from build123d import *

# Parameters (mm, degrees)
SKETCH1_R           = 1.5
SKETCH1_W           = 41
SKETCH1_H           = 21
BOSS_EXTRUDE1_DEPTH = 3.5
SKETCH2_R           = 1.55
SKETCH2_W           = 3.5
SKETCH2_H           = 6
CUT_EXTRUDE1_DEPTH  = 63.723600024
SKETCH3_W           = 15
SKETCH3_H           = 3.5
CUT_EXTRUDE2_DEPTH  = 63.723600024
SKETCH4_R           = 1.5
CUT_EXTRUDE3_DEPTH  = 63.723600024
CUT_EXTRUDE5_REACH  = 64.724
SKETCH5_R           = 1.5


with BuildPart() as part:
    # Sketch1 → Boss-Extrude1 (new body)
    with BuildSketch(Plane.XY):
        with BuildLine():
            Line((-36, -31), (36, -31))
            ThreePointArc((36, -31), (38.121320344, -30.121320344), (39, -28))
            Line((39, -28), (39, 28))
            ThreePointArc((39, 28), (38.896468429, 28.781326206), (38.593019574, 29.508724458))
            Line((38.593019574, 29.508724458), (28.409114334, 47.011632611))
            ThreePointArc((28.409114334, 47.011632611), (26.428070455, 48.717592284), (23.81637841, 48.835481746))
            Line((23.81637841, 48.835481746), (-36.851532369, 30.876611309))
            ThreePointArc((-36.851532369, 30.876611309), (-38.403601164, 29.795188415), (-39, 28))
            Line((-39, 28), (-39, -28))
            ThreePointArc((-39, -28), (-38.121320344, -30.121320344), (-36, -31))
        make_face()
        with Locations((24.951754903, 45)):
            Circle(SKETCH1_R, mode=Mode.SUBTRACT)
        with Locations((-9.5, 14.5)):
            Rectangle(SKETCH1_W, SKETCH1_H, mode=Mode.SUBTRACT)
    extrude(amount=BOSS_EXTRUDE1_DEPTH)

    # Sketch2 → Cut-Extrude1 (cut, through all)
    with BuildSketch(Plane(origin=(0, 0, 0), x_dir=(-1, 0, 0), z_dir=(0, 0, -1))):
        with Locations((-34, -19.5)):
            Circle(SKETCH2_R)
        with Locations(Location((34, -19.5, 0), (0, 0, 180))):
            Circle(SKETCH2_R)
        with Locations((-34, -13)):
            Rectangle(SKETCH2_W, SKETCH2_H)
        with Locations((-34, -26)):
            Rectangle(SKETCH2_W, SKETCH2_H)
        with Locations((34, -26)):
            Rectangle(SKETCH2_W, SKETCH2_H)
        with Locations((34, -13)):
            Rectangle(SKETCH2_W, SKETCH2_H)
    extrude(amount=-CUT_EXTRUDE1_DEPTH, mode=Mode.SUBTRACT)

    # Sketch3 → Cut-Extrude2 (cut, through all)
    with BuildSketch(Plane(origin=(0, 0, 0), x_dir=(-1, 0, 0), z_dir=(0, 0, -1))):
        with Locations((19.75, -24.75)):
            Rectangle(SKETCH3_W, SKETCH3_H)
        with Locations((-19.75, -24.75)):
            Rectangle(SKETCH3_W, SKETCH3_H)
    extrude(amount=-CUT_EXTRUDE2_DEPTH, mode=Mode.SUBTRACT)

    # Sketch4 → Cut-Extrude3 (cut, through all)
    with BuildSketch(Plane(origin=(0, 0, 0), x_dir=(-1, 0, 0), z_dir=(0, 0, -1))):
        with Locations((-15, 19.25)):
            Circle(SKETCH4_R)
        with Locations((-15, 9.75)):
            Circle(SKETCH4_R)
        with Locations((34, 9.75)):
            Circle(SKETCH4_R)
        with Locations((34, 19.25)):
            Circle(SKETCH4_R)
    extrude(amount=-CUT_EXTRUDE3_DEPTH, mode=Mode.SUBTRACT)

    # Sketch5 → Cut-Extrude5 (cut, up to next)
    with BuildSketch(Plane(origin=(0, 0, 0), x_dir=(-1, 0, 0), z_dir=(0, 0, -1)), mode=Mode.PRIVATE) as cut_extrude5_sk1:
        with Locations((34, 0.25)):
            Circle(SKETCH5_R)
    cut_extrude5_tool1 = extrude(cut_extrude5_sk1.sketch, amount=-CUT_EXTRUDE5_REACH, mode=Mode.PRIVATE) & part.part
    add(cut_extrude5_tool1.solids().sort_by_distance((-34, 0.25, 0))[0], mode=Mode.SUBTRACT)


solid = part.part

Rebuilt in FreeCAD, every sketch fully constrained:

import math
import FreeCAD as App
import Part
import Sketcher


def add_polygon(sketch, points):
    """Adds a closed chain of lines whose ends are joined by coincident constraints."""
    first, n = sketch.GeometryCount, len(points)
    for a, b in zip(points, points[1:] + points[:1]):
        sketch.addGeometry(Part.LineSegment(App.Vector(*a, 0), App.Vector(*b, 0)), False)
    for i in range(n):
        sketch.addConstraint(Sketcher.Constraint("Coincident", first + i, 2, first + (i + 1) % n, 1))

doc = App.newDocument("Part")
params = doc.addObject("Spreadsheet::Sheet", "Params")
for row, (alias, value) in enumerate([
    ("sketch1_diameter", "3 mm"),
    ("sketch1_radius", "3 mm"),
    ("sketch1_radius2", "4 mm"),
    ("sketch1_width", "72 mm"),
    ("sketch1_width2", "41 mm"),
    ("pad1_length", "3.5 mm"),
    ("sketch2_diameter", "3.1 mm"),
    ("sketch2_height", "6 mm"),
    ("sketch2_width", "3.5 mm"),
    ("sketch3_width", "15 mm"),
    ("sketch3_height", "3.5 mm"),
    ("sketch4_diameter", "3 mm"),
    ("sketch5_diameter", "3 mm"),
], start=1):
    params.set(f"A{row}", alias)
    params.set(f"B{row}", "=" + value)
    params.setAlias(f"B{row}", alias)

body = doc.addObject("PartDesign::Body", "Body")

sketch1 = doc.addObject("Sketcher::SketchObject", "Sketch")
body.addObject(sketch1)
sketch1.AttachmentSupport = (doc.XY_Plane, [""])
sketch1.MapMode = "FlatFace"
sketch1.addGeometry(Part.LineSegment(App.Vector(-36, -31, 0), App.Vector(36, -31, 0)), False)
sketch1.addGeometry(Part.ArcOfCircle(Part.Circle(App.Vector(36, -28, 0), App.Vector(0, 0, 1), 3), math.radians(-90), math.radians(0)), False)
sketch1.addGeometry(Part.LineSegment(App.Vector(39, -28, 0), App.Vector(39, 28, 0)), False)
sketch1.addGeometry(Part.ArcOfCircle(Part.Circle(App.Vector(36, 28, 0), App.Vector(0, 0, 1), 3), math.radians(0), math.radians(30.192589)), False)
sketch1.addGeometry(Part.LineSegment(App.Vector(38.59302, 29.508724, 0), App.Vector(28.409114, 47.011633, 0)), False)
sketch1.addGeometry(Part.ArcOfCircle(Part.Circle(App.Vector(24.951755, 45, 0), App.Vector(0, 0, 1), 4), math.radians(30.192589), math.radians(106.489769)), False)
sketch1.addGeometry(Part.LineSegment(App.Vector(23.816378, 48.835482, 0), App.Vector(-36.851532, 30.876611, 0)), False)
sketch1.addGeometry(Part.ArcOfCircle(Part.Circle(App.Vector(-36, 28, 0), App.Vector(0, 0, 1), 3), math.radians(106.489769), math.radians(180)), False)
sketch1.addGeometry(Part.LineSegment(App.Vector(-39, 28, 0), App.Vector(-39, -28, 0)), False)
sketch1.addGeometry(Part.ArcOfCircle(Part.Circle(App.Vector(-36, -28, 0), App.Vector(0, 0, 1), 3), math.radians(180), math.radians(270)), False)
add_polygon(sketch1, [(11, 4), (-30, 4), (-30, 25), (11, 25)])
sketch1.addGeometry(Part.Circle(App.Vector(24.951755, 45, 0), App.Vector(0, 0, 1), 1.5), False)
sketch1.addConstraint([
    Sketcher.Constraint("Tangent", 0, 2, 1, 1),
    Sketcher.Constraint("Tangent", 1, 2, 2, 1),
    Sketcher.Constraint("Tangent", 2, 2, 3, 1),
    Sketcher.Constraint("Tangent", 3, 2, 4, 1),
    Sketcher.Constraint("Tangent", 4, 2, 5, 1),
    Sketcher.Constraint("Tangent", 5, 2, 6, 1),
    Sketcher.Constraint("Tangent", 6, 2, 7, 1),
    Sketcher.Constraint("Tangent", 7, 2, 8, 1),
    Sketcher.Constraint("Tangent", 8, 2, 9, 1),
    Sketcher.Constraint("Tangent", 9, 2, 0, 1),
    Sketcher.Constraint("Horizontal", 0),
    Sketcher.Constraint("Vertical", 2),
    Sketcher.Constraint("Vertical", 8),
    Sketcher.Constraint("Horizontal", 10),
    Sketcher.Constraint("Vertical", 11),
    Sketcher.Constraint("Horizontal", 12),
    Sketcher.Constraint("Vertical", 13),
    Sketcher.Constraint("Coincident", 14, 3, 5, 3),
    Sketcher.Constraint("Equal", 1, 3),
    Sketcher.Constraint("Equal", 3, 7),
    Sketcher.Constraint("Equal", 7, 9),
    Sketcher.Constraint("Symmetric", 1, 3, 7, 3, -1, 1),
    Sketcher.Constraint("Horizontal", 3, 3, 7, 3),
    Sketcher.Constraint("Diameter", 14, 3.0),
    Sketcher.Constraint("Radius", 1, 3.0),
    Sketcher.Constraint("Radius", 5, 4.0),
    Sketcher.Constraint("DistanceX", 0, 1, 0, 2, 72.0),
    Sketcher.Constraint("DistanceX", 10, 2, 10, 1, 41.0),
    Sketcher.Constraint("DistanceY", 2, 1, 2, 2, 56.0),
    Sketcher.Constraint("DistanceY", 11, 1, 11, 2, 21.0),
    Sketcher.Constraint("DistanceY", -1, 1, 5, 3, 45.0),
    Sketcher.Constraint("DistanceX", 10, 2, -1, 1, 30.0),
    Sketcher.Constraint("DistanceY", -1, 1, 10, 2, 4.0),
    Sketcher.Constraint("Distance", 4, 20.25003),
])
sketch1.setExpression("Constraints[27]", "Params.sketch1_diameter")
sketch1.setExpression("Constraints[28]", "Params.sketch1_radius")
sketch1.setExpression("Constraints[29]", "Params.sketch1_radius2")
sketch1.setExpression("Constraints[30]", "Params.sketch1_width")
sketch1.setExpression("Constraints[31]", "Params.sketch1_width2")
pad1 = doc.addObject("PartDesign::Pad", "Pad")
body.addObject(pad1)
pad1.Profile = sketch1
pad1.setExpression("Length", "Params.pad1_length")

sketch2 = doc.addObject("Sketcher::SketchObject", "Sketch001")
body.addObject(sketch2)
sketch2.AttachmentSupport = (doc.XY_Plane, [""])
sketch2.MapMode = "FlatFace"
sketch2.addGeometry(Part.Circle(App.Vector(34, -19.5, 0), App.Vector(0, 0, 1), 1.55), False)
sketch2.addGeometry(Part.Circle(App.Vector(-34, -19.5, 0), App.Vector(0, 0, 1), 1.55), False)
add_polygon(sketch2, [(35.75, -10), (35.75, -16), (32.25, -16), (32.25, -10)])
add_polygon(sketch2, [(35.75, -23), (35.75, -29), (32.25, -29), (32.25, -23)])
add_polygon(sketch2, [(-32.25, -23), (-32.25, -29), (-35.75, -29), (-35.75, -23)])
add_polygon(sketch2, [(-32.25, -10), (-32.25, -16), (-35.75, -16), (-35.75, -10)])
sketch2.addConstraint([
    Sketcher.Constraint("Vertical", 2),
    Sketcher.Constraint("Horizontal", 3),
    Sketcher.Constraint("Vertical", 4),
    Sketcher.Constraint("Horizontal", 5),
    Sketcher.Constraint("Vertical", 6),
    Sketcher.Constraint("Horizontal", 7),
    Sketcher.Constraint("Vertical", 8),
    Sketcher.Constraint("Horizontal", 9),
    Sketcher.Constraint("Vertical", 10),
    Sketcher.Constraint("Horizontal", 11),
    Sketcher.Constraint("Vertical", 12),
    Sketcher.Constraint("Horizontal", 13),
    Sketcher.Constraint("Vertical", 14),
    Sketcher.Constraint("Horizontal", 15),
    Sketcher.Constraint("Vertical", 16),
    Sketcher.Constraint("Horizontal", 17),
    Sketcher.Constraint("Equal", 0, 1),
    Sketcher.Constraint("Symmetric", 0, 3, 1, 3, -2),
    Sketcher.Constraint("Symmetric", 7, 2, 10, 2, -2),
    Sketcher.Constraint("Symmetric", 9, 2, 12, 2, -2),
    Sketcher.Constraint("Symmetric", 3, 2, 14, 2, -2),
    Sketcher.Constraint("Symmetric", 5, 2, 16, 2, -2),
    Sketcher.Constraint("Vertical", 5, 2, 6, 2),
    Sketcher.Constraint("Vertical", 4, 2, 7, 2),
    Sketcher.Constraint("Equal", 4, 6),
    Sketcher.Constraint("Diameter", 0, 3.1),
    Sketcher.Constraint("DistanceY", 2, 2, 2, 1, 6.0),
    Sketcher.Constraint("DistanceX", 3, 2, 3, 1, 3.5),
    Sketcher.Constraint("DistanceX", -1, 1, 0, 3, 34.0),
    Sketcher.Constraint("DistanceY", 2, 2, -1, 1, 16.0),
    Sketcher.Constraint("DistanceY", 6, 2, -1, 1, 29.0),
    Sketcher.Constraint("DistanceX", 11, 2, 7, 2, 68.0),
    Sketcher.Constraint("DistanceY", 0, 3, -1, 1, 19.5),
])
sketch2.setExpression("Constraints[41]", "Params.sketch2_diameter")
sketch2.setExpression("Constraints[42]", "Params.sketch2_height")
sketch2.setExpression("Constraints[43]", "Params.sketch2_width")
pocket1 = doc.addObject("PartDesign::Pocket", "Pocket")
body.addObject(pocket1)
pocket1.Profile = sketch2
pocket1.Type = "ThroughAll"
pocket1.Reversed = True

sketch3 = doc.addObject("Sketcher::SketchObject", "Sketch002")
body.addObject(sketch3)
sketch3.AttachmentSupport = (doc.XY_Plane, [""])
sketch3.MapMode = "FlatFace"
add_polygon(sketch3, [(-12.25, -23), (-12.25, -26.5), (-27.25, -26.5), (-27.25, -23)])
add_polygon(sketch3, [(27.25, -23), (27.25, -26.5), (12.25, -26.5), (12.25, -23)])
sketch3.addConstraint([
    Sketcher.Constraint("Vertical", 0),
    Sketcher.Constraint("Horizontal", 1),
    Sketcher.Constraint("Vertical", 2),
    Sketcher.Constraint("Horizontal", 3),
    Sketcher.Constraint("Vertical", 4),
    Sketcher.Constraint("Horizontal", 5),
    Sketcher.Constraint("Vertical", 6),
    Sketcher.Constraint("Horizontal", 7),
    Sketcher.Constraint("Symmetric", 1, 2, 4, 2, -2),
    Sketcher.Constraint("Symmetric", 3, 2, 6, 2, -2),
    Sketcher.Constraint("DistanceX", 1, 2, 1, 1, 15.0),
    Sketcher.Constraint("DistanceY", 0, 2, 0, 1, 3.5),
    Sketcher.Constraint("DistanceY", 2, 2, -1, 1, 23.0),
    Sketcher.Constraint("DistanceX", 0, 2, 4, 2, 39.5),
])
sketch3.setExpression("Constraints[18]", "Params.sketch3_width")
sketch3.setExpression("Constraints[19]", "Params.sketch3_height")
pocket2 = doc.addObject("PartDesign::Pocket", "Pocket001")
body.addObject(pocket2)
pocket2.Profile = sketch3
pocket2.Type = "ThroughAll"
pocket2.Reversed = True

sketch4 = doc.addObject("Sketcher::SketchObject", "Sketch003")
body.addObject(sketch4)
sketch4.AttachmentSupport = (doc.XY_Plane, [""])
sketch4.MapMode = "FlatFace"
sketch4.addGeometry([
    Part.Circle(App.Vector(15, 19.25, 0), App.Vector(0, 0, 1), 1.5),
    Part.Circle(App.Vector(15, 9.75, 0), App.Vector(0, 0, 1), 1.5),
    Part.Circle(App.Vector(-34, 9.75, 0), App.Vector(0, 0, 1), 1.5),
    Part.Circle(App.Vector(-34, 19.25, 0), App.Vector(0, 0, 1), 1.5),
], False)
sketch4.addConstraint([
    Sketcher.Constraint("Equal", 0, 1),
    Sketcher.Constraint("Equal", 1, 2),
    Sketcher.Constraint("Equal", 2, 3),
    Sketcher.Constraint("Horizontal", 1, 3, 2, 3),
    Sketcher.Constraint("Horizontal", 0, 3, 3, 3),
    Sketcher.Constraint("Vertical", 0, 3, 1, 3),
    Sketcher.Constraint("Vertical", 2, 3, 3, 3),
    Sketcher.Constraint("Diameter", 0, 3.0),
    Sketcher.Constraint("DistanceX", -1, 1, 0, 3, 15.0),
    Sketcher.Constraint("DistanceX", 2, 3, -1, 1, 34.0),
    Sketcher.Constraint("DistanceY", 1, 3, 0, 3, 9.5),
    Sketcher.Constraint("DistanceY", -1, 1, 0, 3, 19.25),
])
sketch4.setExpression("Constraints[7]", "Params.sketch4_diameter")
pocket3 = doc.addObject("PartDesign::Pocket", "Pocket002")
body.addObject(pocket3)
pocket3.Profile = sketch4
pocket3.Type = "ThroughAll"
pocket3.Reversed = True

sketch5 = doc.addObject("Sketcher::SketchObject", "Sketch004")
body.addObject(sketch5)
sketch5.AttachmentSupport = (doc.XY_Plane, [""])
sketch5.MapMode = "FlatFace"
sketch5.addGeometry(Part.Circle(App.Vector(-34, 0.25, 0), App.Vector(0, 0, 1), 1.5), False)
sketch5.addConstraint([
    Sketcher.Constraint("Diameter", 0, 3.0),
    Sketcher.Constraint("DistanceX", 0, 3, -1, 1, 34.0),
    Sketcher.Constraint("DistanceY", -1, 1, 0, 3, 0.25),
])
sketch5.setExpression("Constraints[0]", "Params.sketch5_diameter")
pocket4 = doc.addObject("PartDesign::Pocket", "Pocket003")
body.addObject(pocket4)
pocket4.Profile = sketch5
pocket4.Type = "UpToFirst"
pocket4.Reversed = True

doc.recompute()
